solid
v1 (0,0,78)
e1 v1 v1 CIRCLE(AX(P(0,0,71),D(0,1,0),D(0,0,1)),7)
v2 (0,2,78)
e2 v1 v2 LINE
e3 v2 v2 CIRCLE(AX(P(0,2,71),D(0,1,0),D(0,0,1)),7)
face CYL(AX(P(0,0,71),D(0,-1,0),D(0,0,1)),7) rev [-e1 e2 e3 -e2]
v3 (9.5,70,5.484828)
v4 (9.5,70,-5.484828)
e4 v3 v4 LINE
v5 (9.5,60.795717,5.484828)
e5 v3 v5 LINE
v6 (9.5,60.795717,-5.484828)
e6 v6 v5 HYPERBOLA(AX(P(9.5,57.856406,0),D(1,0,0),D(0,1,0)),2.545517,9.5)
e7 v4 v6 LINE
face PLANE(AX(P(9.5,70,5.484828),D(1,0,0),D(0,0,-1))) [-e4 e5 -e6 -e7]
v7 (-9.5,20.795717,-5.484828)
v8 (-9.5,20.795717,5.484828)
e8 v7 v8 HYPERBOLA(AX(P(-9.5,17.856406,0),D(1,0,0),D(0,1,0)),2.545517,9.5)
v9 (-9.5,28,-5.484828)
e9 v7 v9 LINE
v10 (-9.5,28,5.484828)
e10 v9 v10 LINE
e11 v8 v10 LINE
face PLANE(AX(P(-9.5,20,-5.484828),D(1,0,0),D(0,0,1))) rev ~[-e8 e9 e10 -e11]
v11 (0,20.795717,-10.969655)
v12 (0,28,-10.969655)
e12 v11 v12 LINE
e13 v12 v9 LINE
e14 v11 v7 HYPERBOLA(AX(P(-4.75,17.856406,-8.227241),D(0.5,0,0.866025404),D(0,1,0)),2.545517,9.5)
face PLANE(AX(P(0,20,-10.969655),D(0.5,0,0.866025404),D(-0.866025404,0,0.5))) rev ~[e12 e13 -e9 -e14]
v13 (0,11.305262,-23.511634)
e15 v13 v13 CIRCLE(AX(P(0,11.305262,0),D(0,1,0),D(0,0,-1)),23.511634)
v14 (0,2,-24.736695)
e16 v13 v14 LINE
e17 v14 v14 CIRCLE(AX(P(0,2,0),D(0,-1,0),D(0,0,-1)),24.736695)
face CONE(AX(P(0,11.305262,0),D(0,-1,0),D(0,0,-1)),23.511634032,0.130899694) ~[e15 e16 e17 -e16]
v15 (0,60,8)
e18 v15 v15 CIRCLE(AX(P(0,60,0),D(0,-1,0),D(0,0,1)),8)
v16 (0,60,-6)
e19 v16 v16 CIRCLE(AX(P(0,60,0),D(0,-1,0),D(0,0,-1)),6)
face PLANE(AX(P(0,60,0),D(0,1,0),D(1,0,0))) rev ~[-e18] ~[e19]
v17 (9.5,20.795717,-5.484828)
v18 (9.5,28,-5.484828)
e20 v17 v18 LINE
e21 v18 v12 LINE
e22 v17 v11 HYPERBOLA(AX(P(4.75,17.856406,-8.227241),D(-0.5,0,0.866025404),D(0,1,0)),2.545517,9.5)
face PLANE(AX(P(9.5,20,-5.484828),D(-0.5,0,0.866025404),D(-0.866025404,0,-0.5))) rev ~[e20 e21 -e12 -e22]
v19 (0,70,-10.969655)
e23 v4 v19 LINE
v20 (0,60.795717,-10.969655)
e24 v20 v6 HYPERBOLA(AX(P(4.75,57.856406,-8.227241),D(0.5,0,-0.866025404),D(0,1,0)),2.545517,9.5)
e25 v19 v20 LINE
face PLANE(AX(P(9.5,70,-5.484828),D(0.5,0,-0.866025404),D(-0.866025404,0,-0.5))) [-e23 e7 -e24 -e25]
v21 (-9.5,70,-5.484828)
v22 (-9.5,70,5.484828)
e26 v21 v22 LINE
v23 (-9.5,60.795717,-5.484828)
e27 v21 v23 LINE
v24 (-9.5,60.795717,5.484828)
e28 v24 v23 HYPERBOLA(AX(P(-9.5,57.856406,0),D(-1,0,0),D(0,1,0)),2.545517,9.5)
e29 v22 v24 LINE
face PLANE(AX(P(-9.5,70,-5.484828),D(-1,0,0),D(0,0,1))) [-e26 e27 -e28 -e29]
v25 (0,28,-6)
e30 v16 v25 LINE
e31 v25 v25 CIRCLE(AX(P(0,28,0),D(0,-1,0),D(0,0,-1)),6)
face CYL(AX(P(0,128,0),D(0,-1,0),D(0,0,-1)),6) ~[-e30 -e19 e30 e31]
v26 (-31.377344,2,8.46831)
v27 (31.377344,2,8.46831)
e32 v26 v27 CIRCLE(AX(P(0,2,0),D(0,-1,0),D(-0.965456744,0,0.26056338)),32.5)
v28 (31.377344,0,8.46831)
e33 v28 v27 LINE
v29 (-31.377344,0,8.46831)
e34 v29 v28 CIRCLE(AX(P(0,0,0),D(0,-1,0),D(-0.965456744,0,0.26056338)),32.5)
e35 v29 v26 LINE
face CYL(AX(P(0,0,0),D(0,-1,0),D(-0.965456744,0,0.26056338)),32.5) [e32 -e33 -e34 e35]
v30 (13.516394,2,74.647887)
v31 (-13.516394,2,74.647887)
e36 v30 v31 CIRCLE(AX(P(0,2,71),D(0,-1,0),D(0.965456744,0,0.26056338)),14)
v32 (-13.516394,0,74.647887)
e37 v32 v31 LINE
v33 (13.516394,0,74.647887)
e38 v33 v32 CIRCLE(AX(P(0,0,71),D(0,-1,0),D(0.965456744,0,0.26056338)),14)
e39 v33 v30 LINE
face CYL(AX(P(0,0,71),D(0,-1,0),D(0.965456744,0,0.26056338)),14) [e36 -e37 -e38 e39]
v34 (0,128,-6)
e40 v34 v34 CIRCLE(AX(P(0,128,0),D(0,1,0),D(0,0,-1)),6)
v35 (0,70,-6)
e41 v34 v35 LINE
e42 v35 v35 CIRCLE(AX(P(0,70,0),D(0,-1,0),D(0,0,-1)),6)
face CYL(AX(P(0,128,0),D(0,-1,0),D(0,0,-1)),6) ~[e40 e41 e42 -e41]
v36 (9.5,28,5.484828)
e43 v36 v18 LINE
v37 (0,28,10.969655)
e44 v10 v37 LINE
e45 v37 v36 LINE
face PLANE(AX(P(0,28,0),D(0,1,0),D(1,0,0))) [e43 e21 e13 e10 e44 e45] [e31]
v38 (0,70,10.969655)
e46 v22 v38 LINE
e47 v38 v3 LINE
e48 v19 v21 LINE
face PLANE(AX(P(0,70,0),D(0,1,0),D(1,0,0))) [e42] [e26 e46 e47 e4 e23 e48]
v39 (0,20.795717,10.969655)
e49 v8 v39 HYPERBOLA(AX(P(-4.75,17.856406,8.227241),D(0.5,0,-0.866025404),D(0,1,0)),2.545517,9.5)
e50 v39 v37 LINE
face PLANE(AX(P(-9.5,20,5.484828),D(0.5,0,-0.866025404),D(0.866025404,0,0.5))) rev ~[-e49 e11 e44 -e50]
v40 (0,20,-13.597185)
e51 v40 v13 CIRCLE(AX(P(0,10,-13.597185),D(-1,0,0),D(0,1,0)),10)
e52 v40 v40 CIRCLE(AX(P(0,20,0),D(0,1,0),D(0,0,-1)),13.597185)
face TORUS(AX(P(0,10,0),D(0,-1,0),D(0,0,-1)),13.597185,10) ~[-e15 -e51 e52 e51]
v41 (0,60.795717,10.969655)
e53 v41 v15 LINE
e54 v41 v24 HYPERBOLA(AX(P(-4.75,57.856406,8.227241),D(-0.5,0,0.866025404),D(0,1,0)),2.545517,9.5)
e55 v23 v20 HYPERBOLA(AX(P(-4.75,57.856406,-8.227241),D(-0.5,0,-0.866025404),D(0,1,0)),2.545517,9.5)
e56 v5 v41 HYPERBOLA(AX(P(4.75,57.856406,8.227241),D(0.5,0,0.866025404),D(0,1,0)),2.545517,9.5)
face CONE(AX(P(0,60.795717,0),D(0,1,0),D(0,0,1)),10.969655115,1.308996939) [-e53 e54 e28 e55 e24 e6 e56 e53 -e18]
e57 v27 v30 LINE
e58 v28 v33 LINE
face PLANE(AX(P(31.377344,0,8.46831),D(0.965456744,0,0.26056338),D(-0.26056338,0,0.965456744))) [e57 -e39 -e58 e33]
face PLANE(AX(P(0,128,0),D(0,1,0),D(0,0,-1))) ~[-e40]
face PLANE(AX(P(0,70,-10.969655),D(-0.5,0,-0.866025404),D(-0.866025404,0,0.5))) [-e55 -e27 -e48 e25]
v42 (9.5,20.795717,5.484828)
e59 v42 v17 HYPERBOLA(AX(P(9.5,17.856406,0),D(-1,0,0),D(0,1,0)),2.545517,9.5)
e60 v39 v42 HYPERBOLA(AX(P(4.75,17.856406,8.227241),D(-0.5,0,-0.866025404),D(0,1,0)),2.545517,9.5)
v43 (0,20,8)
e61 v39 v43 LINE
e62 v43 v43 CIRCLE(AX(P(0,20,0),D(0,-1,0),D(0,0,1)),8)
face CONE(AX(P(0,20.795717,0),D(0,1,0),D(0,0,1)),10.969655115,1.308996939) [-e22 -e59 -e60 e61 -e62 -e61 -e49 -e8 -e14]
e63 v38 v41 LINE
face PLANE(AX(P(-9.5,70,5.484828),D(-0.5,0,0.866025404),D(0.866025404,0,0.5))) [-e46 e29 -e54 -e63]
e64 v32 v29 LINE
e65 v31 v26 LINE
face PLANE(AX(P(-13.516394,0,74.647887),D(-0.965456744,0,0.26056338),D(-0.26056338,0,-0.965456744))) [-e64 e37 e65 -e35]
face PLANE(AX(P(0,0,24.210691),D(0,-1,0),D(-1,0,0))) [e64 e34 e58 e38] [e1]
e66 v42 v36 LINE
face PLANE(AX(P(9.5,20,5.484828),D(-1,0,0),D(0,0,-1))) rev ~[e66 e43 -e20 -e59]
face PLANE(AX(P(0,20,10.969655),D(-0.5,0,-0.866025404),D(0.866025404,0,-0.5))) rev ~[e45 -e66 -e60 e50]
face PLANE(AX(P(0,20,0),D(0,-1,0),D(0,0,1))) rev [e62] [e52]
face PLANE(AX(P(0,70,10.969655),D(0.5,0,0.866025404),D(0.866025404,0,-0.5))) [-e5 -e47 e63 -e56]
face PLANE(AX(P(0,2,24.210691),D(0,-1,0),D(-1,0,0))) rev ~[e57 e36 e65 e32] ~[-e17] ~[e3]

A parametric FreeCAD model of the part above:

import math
import FreeCAD as App
import Part
import Sketcher

V = App.Vector
Q = App.Units.Quantity


def add_polygon(sketch, points):
    """Adds a closed chain of lines whose ends are joined by coincident constraints."""
    first, n = sketch.GeometryCount, len(points)
    for a, b in zip(points, points[1:] + points[:1]):
        sketch.addGeometry(Part.LineSegment(App.Vector(*a, 0), App.Vector(*b, 0)), False)
    for i in range(n):
        sketch.addConstraint(Sketcher.Constraint("Coincident", first + i, 2, first + (i + 1) % n, 1))

doc = App.newDocument("Part")
params = doc.addObject("Spreadsheet::Sheet", "Params")
for row, (alias, value) in enumerate([
    ("sketch1_radius", "10 mm"),
    ("sketch1_width", "25 mm"),
    ("sketch1_width2", "6 mm"),
    ("sketch1_height", "128 mm"),
    ("sketch1_height2", "108 mm"),
    ("revolution_angle", "360 deg"),
    ("sketch2_diameter", "14 mm"),
    ("sketch2_radius", "14 mm"),
    ("sketch2_radius2", "32.5 mm"),
    ("pad1_length", "2 mm"),
    ("pad2_length", "8 mm"),
    ("pad3_length", "10 mm"),
    ("groove_angle", "360 deg"),
], start=1):
    params.set(f"A{row}", alias)
    params.set(f"B{row}", "=" + value)
    params.setAlias(f"B{row}", alias)

body = doc.addObject("PartDesign::Body", "Body")

sketch1 = doc.addObject("Sketcher::SketchObject", "Sketch")
body.addObject(sketch1)
sketch1.AttachmentSupport = (doc.XY_Plane, [""])
sketch1.MapMode = "FlatFace"
sketch1.addGeometry([
    Part.LineSegment(V(0, 128, 0), V(0, 0, 0)),
    Part.LineSegment(V(0, 0, 0), V(25, 0, 0)),
    Part.LineSegment(V(25, 0, 0), V(24, 11, 0)),
    Part.ArcOfCircle(Part.Circle(V(14, 10, 0), V(0, 0, 1), 10), math.radians(7), math.radians(90)),
    Part.LineSegment(V(14, 20, 0), V(6, 20, 0)),
    Part.LineSegment(V(6, 20, 0), V(6, 128, 0)),
    Part.LineSegment(V(6, 128, 0), V(0, 128, 0)),
], False)
sketch1.addConstraint([
    Sketcher.Constraint("Coincident", 0, 2, 1, 1),
    Sketcher.Constraint("Coincident", 1, 2, 2, 1),
    Sketcher.Constraint("Tangent", 2, 2, 3, 1),
    Sketcher.Constraint("Tangent", 3, 2, 4, 1),
    Sketcher.Constraint("Coincident", 4, 2, 5, 1),
    Sketcher.Constraint("Coincident", 5, 2, 6, 1),
    Sketcher.Constraint("Coincident", 6, 2, 0, 1),
    Sketcher.Constraint("Vertical", 0),
    Sketcher.Constraint("Horizontal", 1),
    Sketcher.Constraint("Horizontal", 4),
    Sketcher.Constraint("Vertical", 5),
    Sketcher.Constraint("Horizontal", 6),
    Sketcher.Constraint("Coincident", 0, 2, -1, 1),
    Sketcher.Constraint("Radius", 3, Q("10 mm")),
    Sketcher.Constraint("DistanceX", 1, 1, 1, 2, Q("25 mm")),
    Sketcher.Constraint("DistanceX", 6, 2, 6, 1, Q("6 mm")),
    Sketcher.Constraint("DistanceY", 0, 2, 0, 1, Q("128 mm")),
    Sketcher.Constraint("DistanceY", 5, 1, 5, 2, Q("108 mm")),
    Sketcher.Constraint("Angle", 2, Q("97.5 deg")),
])
sketch1.setExpression("Constraints[13]", "Params.sketch1_radius")
sketch1.setExpression("Constraints[14]", "Params.sketch1_width")
sketch1.setExpression("Constraints[15]", "Params.sketch1_width2")
sketch1.setExpression("Constraints[16]", "Params.sketch1_height")
sketch1.setExpression("Constraints[17]", "Params.sketch1_height2")
revolution = doc.addObject("PartDesign::Revolution", "Revolution")
body.addObject(revolution)
revolution.Profile = sketch1
revolution.ReferenceAxis = (sketch1, ["V_Axis"])
revolution.setExpression("Angle", "Params.revolution_angle")

sketch2 = doc.addObject("Sketcher::SketchObject", "Sketch001")
body.addObject(sketch2)
sketch2.AttachmentSupport = (doc.XZ_Plane, [""])
sketch2.MapMode = "FlatFace"
sketch2.addGeometry([
    Part.LineSegment(V(-31, 8, 0), V(-14, 75, 0)),
    Part.ArcOfCircle(Part.Circle(V(0, 71, 0), V(0, 0, 1), 14), math.radians(15), math.radians(165)),
    Part.LineSegment(V(14, 75, 0), V(31, 8, 0)),
    Part.ArcOfCircle(Part.Circle(V(0, 0, 0), V(0, 0, 1), 32), math.radians(165), math.radians(375)),
    Part.Circle(V(0, 71, 0), V(0, 0, 1), 7),
], False)
sketch2.addConstraint([
    Sketcher.Constraint("Tangent", 0, 2, 1, 2),
    Sketcher.Constraint("Tangent", 1, 1, 2, 1),
    Sketcher.Constraint("Tangent", 2, 2, 3, 2),
    Sketcher.Constraint("Tangent", 3, 1, 0, 1),
    Sketcher.Constraint("Coincident", 3, 3, -1, 1),
    Sketcher.Constraint("Coincident", 4, 3, 1, 3),
    Sketcher.Constraint("PointOnObject", 1, 3, -2),
    Sketcher.Constraint("Diameter", 4, Q("14 mm")),
    Sketcher.Constraint("Radius", 1, Q("14 mm")),
    Sketcher.Constraint("Radius", 3, Q("32.5 mm")),
    Sketcher.Constraint("DistanceY", -1, 1, 1, 3, Q("71 mm")),
])
sketch2.setExpression("Constraints[7]", "Params.sketch2_diameter")
sketch2.setExpression("Constraints[8]", "Params.sketch2_radius")
sketch2.setExpression("Constraints[9]", "Params.sketch2_radius2")
pad1 = doc.addObject("PartDesign::Pad", "Pad")
body.addObject(pad1)
pad1.Profile = sketch2
pad1.setExpression("Length", "Params.pad1_length")
pad1.Reversed = True

sketch3 = doc.addObject("Sketcher::SketchObject", "Sketch002")
body.addObject(sketch3)
sketch3.AttachmentSupport = (doc.XZ_Plane, [""])
sketch3.MapMode = "FlatFace"
sketch3.AttachmentOffset = App.Placement(V(0, 0, -20), App.Rotation())
add_polygon(sketch3, [(0, 11), (10, 5), (10, -5), (0, -11), (-10, -5), (-10, 5)])
sketch3.addConstraint([
    Sketcher.Constraint("Vertical", 1),
    Sketcher.Constraint("Vertical", 4),
    Sketcher.Constraint("Symmetric", 0, 2, 3, 2, -1, 1),
    Sketcher.Constraint("Symmetric", 2, 2, 5, 2, -1, 1),
    Sketcher.Constraint("PointOnObject", 2, 2, -2),
    Sketcher.Constraint("Parallel", 2, 5),
    Sketcher.Constraint("Horizontal", 1, 2, 3, 2),
    Sketcher.Constraint("Angle", 0, Q("-30 deg")),
    Sketcher.Constraint("DistanceX", 3, 2, 1, 2, Q("19 mm")),
    Sketcher.Constraint("DistanceY", 1, 2, 1, 1, Q("10.969655 mm")),
])
pad2 = doc.addObject("PartDesign::Pad", "Pad001")
body.addObject(pad2)
pad2.Profile = sketch3
pad2.setExpression("Length", "Params.pad2_length")
pad2.Reversed = True

sketch4 = doc.addObject("Sketcher::SketchObject", "Sketch003")
body.addObject(sketch4)
sketch4.AttachmentSupport = (doc.XZ_Plane, [""])
sketch4.MapMode = "FlatFace"
sketch4.AttachmentOffset = App.Placement(V(0, 0, -70), App.Rotation())
add_polygon(sketch4, [(0, -11), (-10, -5), (-10, 5), (0, 11), (10, 5), (10, -5)])
sketch4.addConstraint([
    Sketcher.Constraint("Vertical", 1),
    Sketcher.Constraint("Vertical", 4),
    Sketcher.Constraint("Symmetric", 0, 2, 3, 2, -1, 1),
    Sketcher.Constraint("Symmetric", 2, 2, 5, 2, -1, 1),
    Sketcher.Constraint("PointOnObject", 2, 2, -2),
    Sketcher.Constraint("Parallel", 2, 5),
    Sketcher.Constraint("Horizontal", 1, 2, 3, 2),
    Sketcher.Constraint("Angle", 0, Q("150 deg")),
    Sketcher.Constraint("DistanceX", 1, 2, 3, 2, Q("19 mm")),
    Sketcher.Constraint("DistanceY", 1, 1, 1, 2, Q("10.969655 mm")),
])
pad3 = doc.addObject("PartDesign::Pad", "Pad002")
body.addObject(pad3)
pad3.Profile = sketch4
pad3.setExpression("Length", "Params.pad3_length")

sketch5 = doc.addObject("Sketcher::SketchObject", "Sketch004")
body.addObject(sketch5)
sketch5.AttachmentSupport = (doc.YZ_Plane, [""])
sketch5.MapMode = "FlatFace"
add_polygon(sketch5, [(20, -8), (20, -11), (20.8, -11)])
add_polygon(sketch5, [(60, -8), (60, -11), (60.8, -11)])
sketch5.addConstraint([
    Sketcher.Constraint("Vertical", 0),
    Sketcher.Constraint("Horizontal", 1),
    Sketcher.Constraint("Vertical", 3),
    Sketcher.Constraint("Horizontal", 4),
    Sketcher.Constraint("Parallel", 2, 5),
    Sketcher.Constraint("Horizontal", 1, 2, 3, 2),
    Sketcher.Constraint("Horizontal", 2, 2, 5, 2),
    Sketcher.Constraint("Angle", 2, Q("105 deg")),
    Sketcher.Constraint("DistanceX", -1, 1, 0, 2, Q("20 mm")),
    Sketcher.Constraint("DistanceY", 2, 2, -1, 1, Q("8 mm")),
    Sketcher.Constraint("DistanceX", -1, 1, 3, 2, Q("60 mm")),
    Sketcher.Constraint("DistanceX", 1, 1, 1, 2, Q("0.795717 mm")),
])
groove = doc.addObject("PartDesign::Groove", "Groove")
body.addObject(groove)
groove.Profile = sketch5
groove.ReferenceAxis = (sketch5, ["H_Axis"])
groove.setExpression("Angle", "Params.groove_angle")

doc.recompute()
